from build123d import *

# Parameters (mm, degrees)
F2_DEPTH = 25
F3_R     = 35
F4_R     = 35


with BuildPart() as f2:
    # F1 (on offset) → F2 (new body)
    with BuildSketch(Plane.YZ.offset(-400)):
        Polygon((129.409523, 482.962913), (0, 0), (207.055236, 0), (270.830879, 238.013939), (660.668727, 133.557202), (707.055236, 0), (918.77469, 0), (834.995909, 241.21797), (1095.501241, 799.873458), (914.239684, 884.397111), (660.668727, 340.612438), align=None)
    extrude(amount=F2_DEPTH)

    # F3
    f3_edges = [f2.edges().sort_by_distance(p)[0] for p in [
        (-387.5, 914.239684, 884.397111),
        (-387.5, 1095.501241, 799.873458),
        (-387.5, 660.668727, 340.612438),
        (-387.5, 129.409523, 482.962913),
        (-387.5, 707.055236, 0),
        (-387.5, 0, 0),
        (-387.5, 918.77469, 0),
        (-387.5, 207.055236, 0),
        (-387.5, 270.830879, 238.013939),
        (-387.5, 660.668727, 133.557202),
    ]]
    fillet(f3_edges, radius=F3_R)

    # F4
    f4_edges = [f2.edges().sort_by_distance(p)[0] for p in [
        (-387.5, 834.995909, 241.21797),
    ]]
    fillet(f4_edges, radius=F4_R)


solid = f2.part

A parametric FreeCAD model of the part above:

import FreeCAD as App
import Part
import Sketcher
Q = App.Units.Quantity


def edges_at(feature, points):
    """Names of the edges that pass closest to the given points."""
    edges = feature.Shape.Edges
    near = lambda p: min(range(len(edges)), key=lambda i: edges[i].distToShape(Part.Vertex(*p))[0])
    return sorted({f"Edge{near(p) + 1}" for p in points})

doc = App.newDocument("Part")
body = doc.addObject("PartDesign::Body", "Body")

# Sketch on YZ plane
sketch1 = body.newObject("Sketcher::SketchObject", "Sketch")
sketch1.AttachmentSupport = (doc.getObject("YZ_Plane"), [""])
sketch1.MapMode = "FlatFace"
sketch1.AttachmentOffset = App.Placement(App.Vector(0, 0, -400), App.Rotation())
sketch1.addGeometry([
    Part.LineSegment(App.Vector(129, 483, 0), App.Vector(0, 0, 0)),  # 0
    Part.LineSegment(App.Vector(0, 0, 0), App.Vector(207, 0, 0)),  # 1
    Part.LineSegment(App.Vector(207, 0, 0), App.Vector(271, 238, 0)),  # 2
    Part.LineSegment(App.Vector(271, 238, 0), App.Vector(661, 134, 0)),  # 3
    Part.LineSegment(App.Vector(661, 134, 0), App.Vector(707, 0, 0)),  # 4
    Part.LineSegment(App.Vector(707, 0, 0), App.Vector(919, 0, 0)),  # 5
    Part.LineSegment(App.Vector(919, 0, 0), App.Vector(835, 241, 0)),  # 6
    Part.LineSegment(App.Vector(835, 241, 0), App.Vector(1096, 800, 0)),  # 7
    Part.LineSegment(App.Vector(1096, 800, 0), App.Vector(914, 884, 0)),  # 8
    Part.LineSegment(App.Vector(914, 884, 0), App.Vector(661, 341, 0)),  # 9
    Part.LineSegment(App.Vector(661, 341, 0), App.Vector(129, 483, 0)),  # 10
], False)
sketch1.addConstraint([
    Sketcher.Constraint("Coincident", 0, 2, 1, 1),
    Sketcher.Constraint("Coincident", 1, 2, 2, 1),
    Sketcher.Constraint("Coincident", 2, 2, 3, 1),
    Sketcher.Constraint("Coincident", 3, 2, 4, 1),
    Sketcher.Constraint("Coincident", 4, 2, 5, 1),
    Sketcher.Constraint("Coincident", 5, 2, 6, 1),
    Sketcher.Constraint("Coincident", 6, 2, 7, 1),
    Sketcher.Constraint("Coincident", 7, 2, 8, 1),
    Sketcher.Constraint("Coincident", 8, 2, 9, 1),
    Sketcher.Constraint("Coincident", 9, 2, 10, 1),
    Sketcher.Constraint("Coincident", 10, 2, 0, 1),
    Sketcher.Constraint("Horizontal", 1),
    Sketcher.Constraint("Horizontal", 5),
    Sketcher.Constraint("Coincident", 0, 2, -1, 1),
    Sketcher.Constraint("PointOnObject", 4, 2, -1),
    Sketcher.Constraint("Parallel", 0, 2),
    Sketcher.Constraint("Perpendicular", 2, 3),
    Sketcher.Constraint("Parallel", 4, 6),
    Sketcher.Constraint("Perpendicular", 7, 8),
    Sketcher.Constraint("Perpendicular", 8, 9),
    Sketcher.Constraint("Parallel", 3, 10),
    Sketcher.Constraint("Vertical", 3, 2, 9, 2),
    Sketcher.Constraint("Angle", 0, Q("-105 deg")),
    Sketcher.Constraint("Angle", 7, Q("65 deg")),
    Sketcher.Constraint("Distance", 0, Q("500 mm")),
    Sketcher.Constraint("Distance", 8, Q("200 mm")),
    Sketcher.Constraint("Distance", 9, Q("600.000001 mm")),
    Sketcher.Constraint("Distance", 10, Q("550 mm")),
    Sketcher.Constraint("DistanceX", 1, 2, 4, 2, Q("500 mm")),
    Sketcher.Constraint("DistanceY", -1, 1, 3, 2, Q("133.557202 mm")),
    Sketcher.Constraint("DistanceY", 2, 2, 9, 2, Q("102.598499 mm")),
    Sketcher.Constraint("Distance", 7, Q("616.40813 mm")),
])
pad1 = body.newObject("PartDesign::Pad", "Pad")
pad1.Profile = sketch1
pad1.Length = 25
doc.recompute()

fillet = body.newObject("PartDesign::Fillet", "Fillet")
fillet.Base = (pad1, edges_at(pad1, [
    (-387.5, 914.24, 884.397),
    (-387.5, 1095.501, 799.873),
    (-387.5, 660.669, 340.612),
    (-387.5, 129.41, 482.963),
    (-387.5, 707.055, 0),
    (-387.5, 0, 0),
    (-387.5, 918.775, 0),
    (-387.5, 207.055, 0),
    (-387.5, 270.831, 238.014),
    (-387.5, 660.669, 133.557),
]))
fillet.Radius = 35
doc.recompute()

fillet2 = body.newObject("PartDesign::Fillet", "Fillet001")
fillet2.Base = (fillet, edges_at(fillet, [(-387.5, 834.996, 241.218)]))
fillet2.Radius = 35

doc.recompute()
